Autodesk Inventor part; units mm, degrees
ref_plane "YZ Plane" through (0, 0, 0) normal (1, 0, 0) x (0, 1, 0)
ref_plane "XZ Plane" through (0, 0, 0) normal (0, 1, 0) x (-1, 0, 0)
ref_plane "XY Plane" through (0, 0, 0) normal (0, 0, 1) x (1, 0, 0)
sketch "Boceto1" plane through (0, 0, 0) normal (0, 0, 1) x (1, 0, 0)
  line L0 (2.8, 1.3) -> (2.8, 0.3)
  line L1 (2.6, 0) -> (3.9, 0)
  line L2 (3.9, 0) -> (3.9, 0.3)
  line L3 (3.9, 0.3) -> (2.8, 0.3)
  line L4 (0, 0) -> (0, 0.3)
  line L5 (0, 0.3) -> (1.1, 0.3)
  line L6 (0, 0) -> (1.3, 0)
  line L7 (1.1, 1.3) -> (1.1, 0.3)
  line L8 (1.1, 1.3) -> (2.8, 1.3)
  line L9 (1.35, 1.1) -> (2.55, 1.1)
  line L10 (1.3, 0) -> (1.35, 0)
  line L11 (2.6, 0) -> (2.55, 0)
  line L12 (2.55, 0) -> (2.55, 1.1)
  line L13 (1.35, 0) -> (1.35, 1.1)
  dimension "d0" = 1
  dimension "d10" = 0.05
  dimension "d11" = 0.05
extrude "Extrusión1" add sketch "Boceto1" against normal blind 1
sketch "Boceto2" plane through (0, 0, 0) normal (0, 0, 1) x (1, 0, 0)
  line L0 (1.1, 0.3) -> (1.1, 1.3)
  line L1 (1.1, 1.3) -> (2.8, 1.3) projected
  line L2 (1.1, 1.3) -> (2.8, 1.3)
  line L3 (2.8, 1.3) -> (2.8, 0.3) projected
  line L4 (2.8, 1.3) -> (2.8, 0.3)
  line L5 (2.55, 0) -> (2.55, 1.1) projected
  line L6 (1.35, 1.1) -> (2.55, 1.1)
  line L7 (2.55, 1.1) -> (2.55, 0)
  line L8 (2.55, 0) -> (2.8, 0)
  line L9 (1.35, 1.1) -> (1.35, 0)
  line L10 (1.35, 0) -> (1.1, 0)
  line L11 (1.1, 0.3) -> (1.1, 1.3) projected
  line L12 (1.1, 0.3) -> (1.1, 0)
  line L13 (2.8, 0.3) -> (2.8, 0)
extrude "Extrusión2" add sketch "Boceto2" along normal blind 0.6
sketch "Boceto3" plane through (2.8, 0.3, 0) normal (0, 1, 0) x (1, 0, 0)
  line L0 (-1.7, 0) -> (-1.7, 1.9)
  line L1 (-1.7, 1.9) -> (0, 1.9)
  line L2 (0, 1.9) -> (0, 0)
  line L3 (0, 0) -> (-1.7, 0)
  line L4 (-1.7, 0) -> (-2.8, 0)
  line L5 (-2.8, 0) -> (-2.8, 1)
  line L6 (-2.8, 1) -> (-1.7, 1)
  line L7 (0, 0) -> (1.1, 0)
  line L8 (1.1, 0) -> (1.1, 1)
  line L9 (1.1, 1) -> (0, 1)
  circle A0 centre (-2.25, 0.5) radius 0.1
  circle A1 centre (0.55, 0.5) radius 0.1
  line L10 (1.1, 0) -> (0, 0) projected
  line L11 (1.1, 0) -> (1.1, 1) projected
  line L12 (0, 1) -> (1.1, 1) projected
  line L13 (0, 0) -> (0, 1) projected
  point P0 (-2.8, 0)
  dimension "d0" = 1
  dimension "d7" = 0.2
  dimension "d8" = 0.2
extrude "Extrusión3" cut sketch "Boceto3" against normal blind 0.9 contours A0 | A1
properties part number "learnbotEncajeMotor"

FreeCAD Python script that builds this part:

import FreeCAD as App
import Part
import Sketcher
Q = App.Units.Quantity


def add_polygon(sketch, points):
    """Adds a closed chain of lines whose ends are joined by coincident constraints."""
    first, n = sketch.GeometryCount, len(points)
    for a, b in zip(points, points[1:] + points[:1]):
        sketch.addGeometry(Part.LineSegment(App.Vector(*a, 0), App.Vector(*b, 0)), False)
    for i in range(n):
        sketch.addConstraint(Sketcher.Constraint("Coincident", first + i, 2, first + (i + 1) % n, 1))

doc = App.newDocument("Part")
params = doc.addObject("Spreadsheet::Sheet", "Params")
for row, (alias, value) in enumerate([
    ("sketch1_height", "1 mm"),
    ("sketch1_width", "1.7 mm"),
    ("sketch1_width2", "1.1 mm"),
    ("sketch1_width3", "1.2 mm"),
    ("sketch1_height2", "0.3 mm"),
    ("pad1_length", "1 mm"),
    ("sketch2_width", "1.2 mm"),
    ("sketch2_width2", "1.7 mm"),
    ("sketch2_height", "1.3 mm"),
    ("sketch2_height2", "1.1 mm"),
    ("pad2_length", "0.6 mm"),
    ("sketch3_diameter", "0.2 mm"),
    ("pocket1_length", "0.9 mm"),
], start=1):
    params.set(f"A{row}", alias)
    params.set(f"B{row}", "=" + value)
    params.setAlias(f"B{row}", alias)

body = doc.addObject("PartDesign::Body", "Body")

# Sketch on XY plane
sketch1 = body.newObject("Sketcher::SketchObject", "Sketch")
sketch1.AttachmentSupport = (doc.getObject("XY_Plane"), [""])
sketch1.MapMode = "FlatFace"
add_polygon(sketch1, [(2.8, 0.3), (2.8, 1.3), (1.1, 1.3), (1.1, 0.3), (0, 0.3), (0, 0), (1.35, 0), (1.35, 1.1), (2.55, 1.1), (2.55, 0), (3.9, 0), (3.9, 0.3)])  # lines 0-11
sketch1.addConstraint([
    Sketcher.Constraint("Vertical", 0),
    Sketcher.Constraint("Horizontal", 1),
    Sketcher.Constraint("Vertical", 2),
    Sketcher.Constraint("Horizontal", 3),
    Sketcher.Constraint("Vertical", 4),
    Sketcher.Constraint("Horizontal", 5),
    Sketcher.Constraint("Vertical", 6),
    Sketcher.Constraint("Horizontal", 7),
    Sketcher.Constraint("Vertical", 8),
    Sketcher.Constraint("Horizontal", 9),
    Sketcher.Constraint("Vertical", 10),
    Sketcher.Constraint("Horizontal", 11),
    Sketcher.Constraint("Coincident", 4, 2, -1, 1),
    Sketcher.Constraint("PointOnObject", 8, 2, -1),
    Sketcher.Constraint("Horizontal", 3, 2, 10, 2),
    Sketcher.Constraint("Equal", 5, 9),
    Sketcher.Constraint("Equal", 3, 11),
    Sketcher.Constraint("Equal", 11, 6),
    Sketcher.Constraint("DistanceY", 0, 1, 0, 2, Q("1 mm")),
    Sketcher.Constraint("DistanceX", 1, 2, 1, 1, Q("1.7 mm")),
    Sketcher.Constraint("DistanceX", 3, 2, 3, 1, Q("1.1 mm")),
    Sketcher.Constraint("DistanceX", 7, 1, 7, 2, Q("1.2 mm")),
    Sketcher.Constraint("DistanceY", 4, 2, 4, 1, Q("0.3 mm")),
])
sketch1.setExpression("Constraints[30]", "Params.sketch1_height")
sketch1.setExpression("Constraints[31]", "Params.sketch1_width")
sketch1.setExpression("Constraints[32]", "Params.sketch1_width2")
sketch1.setExpression("Constraints[33]", "Params.sketch1_width3")
sketch1.setExpression("Constraints[34]", "Params.sketch1_height2")
pad1 = body.newObject("PartDesign::Pad", "Pad")
pad1.Profile = sketch1
pad1.setExpression("Length", "Params.pad1_length")
pad1.Reversed = True

# Sketch on XY plane
sketch2 = body.newObject("Sketcher::SketchObject", "Sketch001")
sketch2.AttachmentSupport = (doc.getObject("XY_Plane"), [""])
sketch2.MapMode = "FlatFace"
add_polygon(sketch2, [(1.1, 1.3), (1.1, 0), (1.35, 0), (1.35, 1.1), (2.55, 1.1), (2.55, 0), (2.8, 0), (2.8, 1.3)])  # lines 0-7
sketch2.addConstraint([
    Sketcher.Constraint("Vertical", 0),
    Sketcher.Constraint("Horizontal", 1),
    Sketcher.Constraint("Vertical", 2),
    Sketcher.Constraint("Horizontal", 3),
    Sketcher.Constraint("Vertical", 4),
    Sketcher.Constraint("Horizontal", 5),
    Sketcher.Constraint("Vertical", 6),
    Sketcher.Constraint("Horizontal", 7),
    Sketcher.Constraint("PointOnObject", 0, 2, -1),
    Sketcher.Constraint("PointOnObject", 4, 2, -1),
    Sketcher.Constraint("Equal", 1, 5),
    Sketcher.Constraint("DistanceX", 3, 1, 3, 2, Q("1.2 mm")),
    Sketcher.Constraint("DistanceX", 7, 2, 7, 1, Q("1.7 mm")),
    Sketcher.Constraint("DistanceY", 0, 2, 0, 1, Q("1.3 mm")),
    Sketcher.Constraint("DistanceY", 2, 1, 2, 2, Q("1.1 mm")),
    Sketcher.Constraint("DistanceX", -1, 1, 0, 2, Q("1.1 mm")),
])
sketch2.setExpression("Constraints[19]", "Params.sketch2_width")
sketch2.setExpression("Constraints[20]", "Params.sketch2_width2")
sketch2.setExpression("Constraints[21]", "Params.sketch2_height")
sketch2.setExpression("Constraints[22]", "Params.sketch2_height2")
pad2 = body.newObject("PartDesign::Pad", "Pad001")
pad2.Profile = sketch2
pad2.setExpression("Length", "Params.pad2_length")

# Sketch on XZ plane
sketch3 = body.newObject("Sketcher::SketchObject", "Sketch002")
sketch3.AttachmentSupport = (doc.getObject("XZ_Plane"), [""])
sketch3.MapMode = "FlatFace"
sketch3.AttachmentOffset = App.Placement(App.Vector(0, 0, -0.3), App.Rotation())
sketch3.addGeometry([
    Part.Circle(App.Vector(0.55, -0.5, 0), App.Vector(0, 0, 1), 0.1),
    Part.Circle(App.Vector(3.35, -0.5, 0), App.Vector(0, 0, 1), 0.1),
], False)
sketch3.addConstraint([
    Sketcher.Constraint("Equal", 0, 1),
    Sketcher.Constraint("Horizontal", 0, 3, 1, 3),
    Sketcher.Constraint("Diameter", 0, Q("0.2 mm")),
    Sketcher.Constraint("DistanceY", 0, 3, -1, 1, Q("0.5 mm")),
    Sketcher.Constraint("DistanceX", 0, 3, 1, 3, Q("2.8 mm")),
    Sketcher.Constraint("DistanceX", -1, 1, 0, 3, Q("0.55 mm")),
])
sketch3.setExpression("Constraints[2]", "Params.sketch3_diameter")
pocket1 = body.newObject("PartDesign::Pocket", "Pocket")
pocket1.Profile = sketch3
pocket1.setExpression("Length", "Params.pocket1_length")
pocket1.Reversed = True

doc.recompute()
